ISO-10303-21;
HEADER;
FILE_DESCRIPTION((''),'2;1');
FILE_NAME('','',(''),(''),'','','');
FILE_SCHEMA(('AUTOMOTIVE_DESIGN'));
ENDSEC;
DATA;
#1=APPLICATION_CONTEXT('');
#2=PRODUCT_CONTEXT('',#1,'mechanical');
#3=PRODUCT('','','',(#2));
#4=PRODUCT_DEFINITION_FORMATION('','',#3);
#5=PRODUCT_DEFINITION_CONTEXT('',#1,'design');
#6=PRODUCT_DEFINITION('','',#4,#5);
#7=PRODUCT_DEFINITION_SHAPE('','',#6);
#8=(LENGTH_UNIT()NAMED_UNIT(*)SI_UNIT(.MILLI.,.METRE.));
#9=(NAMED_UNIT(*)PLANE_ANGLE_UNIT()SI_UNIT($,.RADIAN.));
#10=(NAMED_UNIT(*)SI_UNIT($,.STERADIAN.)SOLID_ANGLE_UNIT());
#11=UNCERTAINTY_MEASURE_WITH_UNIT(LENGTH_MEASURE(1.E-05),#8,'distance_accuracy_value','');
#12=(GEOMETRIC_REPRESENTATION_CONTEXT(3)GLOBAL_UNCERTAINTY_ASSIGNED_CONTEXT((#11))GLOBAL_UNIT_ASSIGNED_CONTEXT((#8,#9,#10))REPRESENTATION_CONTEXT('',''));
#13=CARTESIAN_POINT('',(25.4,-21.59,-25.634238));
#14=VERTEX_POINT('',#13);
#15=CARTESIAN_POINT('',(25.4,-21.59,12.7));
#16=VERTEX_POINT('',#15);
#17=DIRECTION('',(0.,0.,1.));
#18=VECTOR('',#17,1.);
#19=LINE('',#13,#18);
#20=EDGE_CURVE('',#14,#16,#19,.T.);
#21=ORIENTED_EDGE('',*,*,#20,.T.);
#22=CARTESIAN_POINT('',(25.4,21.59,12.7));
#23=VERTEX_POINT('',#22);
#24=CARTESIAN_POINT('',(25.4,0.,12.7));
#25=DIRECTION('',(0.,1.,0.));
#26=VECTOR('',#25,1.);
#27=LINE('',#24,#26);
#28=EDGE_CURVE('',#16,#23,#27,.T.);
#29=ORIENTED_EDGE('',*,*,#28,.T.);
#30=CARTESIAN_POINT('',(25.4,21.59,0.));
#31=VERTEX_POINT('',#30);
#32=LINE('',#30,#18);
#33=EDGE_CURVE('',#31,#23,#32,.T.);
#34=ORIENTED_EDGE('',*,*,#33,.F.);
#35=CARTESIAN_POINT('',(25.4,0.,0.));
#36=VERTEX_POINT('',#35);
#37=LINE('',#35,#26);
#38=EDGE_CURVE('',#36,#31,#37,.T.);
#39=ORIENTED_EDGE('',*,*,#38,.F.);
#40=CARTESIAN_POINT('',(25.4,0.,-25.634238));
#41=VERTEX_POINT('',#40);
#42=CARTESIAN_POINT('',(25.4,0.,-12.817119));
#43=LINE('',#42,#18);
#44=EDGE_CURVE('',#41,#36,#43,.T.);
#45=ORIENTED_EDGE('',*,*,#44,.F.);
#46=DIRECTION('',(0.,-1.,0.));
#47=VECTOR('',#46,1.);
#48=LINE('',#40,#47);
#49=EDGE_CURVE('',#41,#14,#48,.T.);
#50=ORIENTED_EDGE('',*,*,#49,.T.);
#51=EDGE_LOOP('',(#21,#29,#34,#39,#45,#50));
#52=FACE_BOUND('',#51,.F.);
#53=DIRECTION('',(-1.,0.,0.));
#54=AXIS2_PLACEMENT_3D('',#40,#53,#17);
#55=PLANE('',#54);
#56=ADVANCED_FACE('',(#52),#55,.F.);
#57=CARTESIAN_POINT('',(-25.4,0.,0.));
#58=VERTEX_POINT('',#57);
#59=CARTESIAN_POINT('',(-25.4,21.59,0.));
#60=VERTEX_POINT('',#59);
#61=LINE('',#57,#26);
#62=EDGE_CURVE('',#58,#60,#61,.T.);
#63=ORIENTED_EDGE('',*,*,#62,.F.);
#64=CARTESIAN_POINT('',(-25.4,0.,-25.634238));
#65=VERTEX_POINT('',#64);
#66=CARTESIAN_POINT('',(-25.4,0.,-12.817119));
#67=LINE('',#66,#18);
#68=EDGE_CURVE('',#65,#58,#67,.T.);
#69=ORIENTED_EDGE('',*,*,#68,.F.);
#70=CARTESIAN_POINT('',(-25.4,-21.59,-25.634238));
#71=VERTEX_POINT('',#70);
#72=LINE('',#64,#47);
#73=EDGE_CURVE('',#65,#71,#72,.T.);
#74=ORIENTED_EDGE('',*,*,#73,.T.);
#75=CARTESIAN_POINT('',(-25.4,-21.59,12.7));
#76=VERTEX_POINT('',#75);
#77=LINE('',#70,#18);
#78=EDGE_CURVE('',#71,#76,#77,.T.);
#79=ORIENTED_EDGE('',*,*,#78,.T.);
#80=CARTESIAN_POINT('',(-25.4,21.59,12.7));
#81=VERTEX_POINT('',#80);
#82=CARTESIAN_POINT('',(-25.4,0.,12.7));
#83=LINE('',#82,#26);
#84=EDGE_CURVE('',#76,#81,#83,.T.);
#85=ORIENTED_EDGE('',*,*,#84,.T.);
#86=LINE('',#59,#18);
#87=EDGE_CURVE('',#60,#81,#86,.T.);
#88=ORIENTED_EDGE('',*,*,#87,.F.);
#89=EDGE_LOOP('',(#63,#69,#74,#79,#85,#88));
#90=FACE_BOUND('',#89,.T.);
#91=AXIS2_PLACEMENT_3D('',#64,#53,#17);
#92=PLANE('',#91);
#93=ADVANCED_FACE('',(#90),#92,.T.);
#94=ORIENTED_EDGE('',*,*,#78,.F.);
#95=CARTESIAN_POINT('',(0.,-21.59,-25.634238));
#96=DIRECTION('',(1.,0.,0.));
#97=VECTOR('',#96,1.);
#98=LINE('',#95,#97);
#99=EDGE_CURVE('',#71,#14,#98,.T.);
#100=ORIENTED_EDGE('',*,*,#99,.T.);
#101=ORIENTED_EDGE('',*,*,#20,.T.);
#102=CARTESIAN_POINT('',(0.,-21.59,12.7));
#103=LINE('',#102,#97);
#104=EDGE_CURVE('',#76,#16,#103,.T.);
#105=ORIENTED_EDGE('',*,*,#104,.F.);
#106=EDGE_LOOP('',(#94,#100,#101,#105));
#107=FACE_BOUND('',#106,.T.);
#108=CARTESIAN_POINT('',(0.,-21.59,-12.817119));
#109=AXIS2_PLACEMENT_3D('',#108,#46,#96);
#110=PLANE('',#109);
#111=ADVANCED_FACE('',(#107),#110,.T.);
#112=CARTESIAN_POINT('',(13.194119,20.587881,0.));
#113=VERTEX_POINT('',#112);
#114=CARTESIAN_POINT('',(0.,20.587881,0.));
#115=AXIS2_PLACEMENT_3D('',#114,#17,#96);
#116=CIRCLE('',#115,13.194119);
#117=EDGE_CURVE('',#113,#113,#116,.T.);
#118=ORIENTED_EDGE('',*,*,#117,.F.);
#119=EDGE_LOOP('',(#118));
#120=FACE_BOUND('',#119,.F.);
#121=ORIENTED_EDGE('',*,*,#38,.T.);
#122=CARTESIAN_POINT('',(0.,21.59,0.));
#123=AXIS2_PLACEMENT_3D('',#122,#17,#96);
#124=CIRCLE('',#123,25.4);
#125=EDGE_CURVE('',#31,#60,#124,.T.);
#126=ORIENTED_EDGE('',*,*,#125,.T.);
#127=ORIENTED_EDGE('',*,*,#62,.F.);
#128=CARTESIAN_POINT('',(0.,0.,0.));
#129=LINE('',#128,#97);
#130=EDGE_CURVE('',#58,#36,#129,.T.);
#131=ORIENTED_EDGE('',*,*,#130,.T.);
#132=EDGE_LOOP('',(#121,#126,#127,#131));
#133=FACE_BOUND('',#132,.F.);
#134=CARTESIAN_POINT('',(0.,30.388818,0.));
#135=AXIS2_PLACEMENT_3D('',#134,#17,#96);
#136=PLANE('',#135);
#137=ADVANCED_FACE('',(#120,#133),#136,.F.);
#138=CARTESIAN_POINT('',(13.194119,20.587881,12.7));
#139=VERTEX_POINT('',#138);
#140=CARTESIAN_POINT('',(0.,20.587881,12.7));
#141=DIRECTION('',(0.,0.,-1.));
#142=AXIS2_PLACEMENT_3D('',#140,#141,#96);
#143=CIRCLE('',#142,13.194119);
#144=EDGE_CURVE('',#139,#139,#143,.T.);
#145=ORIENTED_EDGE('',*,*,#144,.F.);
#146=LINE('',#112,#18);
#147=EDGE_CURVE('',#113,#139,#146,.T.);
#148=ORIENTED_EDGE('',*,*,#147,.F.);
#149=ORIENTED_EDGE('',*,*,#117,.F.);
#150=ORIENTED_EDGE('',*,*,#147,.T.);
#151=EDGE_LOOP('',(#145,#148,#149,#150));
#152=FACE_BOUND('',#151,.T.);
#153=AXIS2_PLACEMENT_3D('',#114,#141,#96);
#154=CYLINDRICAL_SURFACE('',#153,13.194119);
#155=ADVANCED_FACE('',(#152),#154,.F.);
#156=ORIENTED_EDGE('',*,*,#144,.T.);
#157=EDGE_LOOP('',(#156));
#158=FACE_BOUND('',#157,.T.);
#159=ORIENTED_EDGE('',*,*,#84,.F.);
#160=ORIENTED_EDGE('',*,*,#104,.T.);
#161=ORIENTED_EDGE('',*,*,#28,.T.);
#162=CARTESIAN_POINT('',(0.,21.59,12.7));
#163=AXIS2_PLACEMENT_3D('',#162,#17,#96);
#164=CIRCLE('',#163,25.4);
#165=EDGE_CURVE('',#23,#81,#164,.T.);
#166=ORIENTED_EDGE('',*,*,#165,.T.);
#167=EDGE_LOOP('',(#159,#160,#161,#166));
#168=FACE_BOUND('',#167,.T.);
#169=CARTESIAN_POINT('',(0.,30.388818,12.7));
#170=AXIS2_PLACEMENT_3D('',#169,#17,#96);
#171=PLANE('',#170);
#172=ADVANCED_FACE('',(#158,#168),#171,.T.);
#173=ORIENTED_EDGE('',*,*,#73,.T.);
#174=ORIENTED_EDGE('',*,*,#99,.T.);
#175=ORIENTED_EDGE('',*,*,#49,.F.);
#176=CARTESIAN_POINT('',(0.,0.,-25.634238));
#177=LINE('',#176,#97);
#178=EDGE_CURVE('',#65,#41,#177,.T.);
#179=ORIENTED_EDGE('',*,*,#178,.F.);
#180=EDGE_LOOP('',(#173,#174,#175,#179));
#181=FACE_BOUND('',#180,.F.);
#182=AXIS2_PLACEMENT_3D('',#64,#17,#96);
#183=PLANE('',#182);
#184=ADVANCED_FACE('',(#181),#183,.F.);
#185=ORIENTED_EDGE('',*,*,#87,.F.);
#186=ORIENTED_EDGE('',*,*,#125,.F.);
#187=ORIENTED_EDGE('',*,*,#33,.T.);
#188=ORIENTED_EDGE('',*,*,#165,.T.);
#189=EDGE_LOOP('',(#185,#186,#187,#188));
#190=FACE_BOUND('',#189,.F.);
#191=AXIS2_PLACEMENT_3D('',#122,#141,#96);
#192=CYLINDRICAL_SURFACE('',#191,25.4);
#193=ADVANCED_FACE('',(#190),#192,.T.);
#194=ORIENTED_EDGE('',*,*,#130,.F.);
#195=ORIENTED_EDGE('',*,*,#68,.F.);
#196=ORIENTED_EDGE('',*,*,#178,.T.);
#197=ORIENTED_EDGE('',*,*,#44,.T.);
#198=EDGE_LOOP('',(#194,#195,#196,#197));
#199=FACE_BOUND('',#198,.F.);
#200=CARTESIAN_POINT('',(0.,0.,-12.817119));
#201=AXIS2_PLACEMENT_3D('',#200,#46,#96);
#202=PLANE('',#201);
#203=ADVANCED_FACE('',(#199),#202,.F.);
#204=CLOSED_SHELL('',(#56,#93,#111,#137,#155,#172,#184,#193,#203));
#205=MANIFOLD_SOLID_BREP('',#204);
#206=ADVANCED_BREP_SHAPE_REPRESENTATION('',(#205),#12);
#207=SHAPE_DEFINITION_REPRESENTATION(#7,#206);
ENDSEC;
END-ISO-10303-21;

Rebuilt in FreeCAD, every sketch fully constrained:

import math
import FreeCAD as App
import Part
import Sketcher
Q = App.Units.Quantity

doc = App.newDocument("Part")
body = doc.addObject("PartDesign::Body", "Body")

sketch1 = body.newObject("Sketcher::SketchObject", "Sketch")
sketch1.AttachmentSupport = (doc.getObject("XY_Plane"), [""])
sketch1.MapMode = "FlatFace"
sketch1.addGeometry(Part.ArcOfCircle(Part.Circle(App.Vector(0, 22, 0), App.Vector(0, 0, 1), 25), math.radians(0), math.radians(180)), False)
sketch1.addGeometry(Part.LineSegment(App.Vector(-25, 22, 0), App.Vector(-25, -22, 0)), False)
sketch1.addGeometry(Part.LineSegment(App.Vector(-25, -22, 0), App.Vector(25, -22, 0)), False)
sketch1.addGeometry(Part.LineSegment(App.Vector(25, -22, 0), App.Vector(25, 22, 0)), False)
sketch1.addConstraint(Sketcher.Constraint("Tangent", 0, 2, 1, 1))
sketch1.addConstraint(Sketcher.Constraint("Coincident", 1, 2, 2, 1))
sketch1.addConstraint(Sketcher.Constraint("Coincident", 2, 2, 3, 1))
sketch1.addConstraint(Sketcher.Constraint("Tangent", 3, 2, 0, 1))
sketch1.addConstraint(Sketcher.Constraint("Vertical", 1))
sketch1.addConstraint(Sketcher.Constraint("Horizontal", 2))
sketch1.addConstraint(Sketcher.Constraint("Vertical", 3))
sketch1.addConstraint(Sketcher.Constraint("Symmetric", 0, 2, 2, 2, -1, 1))
sketch1.addConstraint(Sketcher.Constraint("Radius", 0, Q("1 in")))
sketch1.addConstraint(Sketcher.Constraint("DistanceY", 1, 2, 1, 1, Q("1.7 in")))
pad1 = body.newObject("PartDesign::Pad", "Pad")
pad1.Profile = sketch1
pad1.Length = Q("0.5 in")

sketch2 = body.newObject("Sketcher::SketchObject", "Sketch001")
sketch2.AttachmentSupport = (doc.getObject("XY_Plane"), [""])
sketch2.MapMode = "FlatFace"
sketch2.addGeometry(Part.Circle(App.Vector(0, 21, 0), App.Vector(0, 0, 1), 13), False)
sketch2.addConstraint(Sketcher.Constraint("PointOnObject", 0, 3, -2))
sketch2.addConstraint(Sketcher.Constraint("Diameter", 0, 26.388238))
sketch2.addConstraint(Sketcher.Constraint("DistanceY", -1, 1, 0, 3, 20.587881))
pocket1 = body.newObject("PartDesign::Pocket", "Pocket")
pocket1.Profile = sketch2
pocket1.Type = "ThroughAll"
pocket1.Reversed = True

sketch3 = body.newObject("Sketcher::SketchObject", "Sketch002")
sketch3.AttachmentSupport = (doc.getObject("XZ_Plane"), [""])
sketch3.MapMode = "FlatFace"
sketch3.addGeometry(Part.LineSegment(App.Vector(-25, 0, 0), App.Vector(-25, -26, 0)), False)
sketch3.addGeometry(Part.LineSegment(App.Vector(-25, -26, 0), App.Vector(25, -26, 0)), False)
sketch3.addGeometry(Part.LineSegment(App.Vector(25, -26, 0), App.Vector(25, 0, 0)), False)
sketch3.addGeometry(Part.LineSegment(App.Vector(25, 0, 0), App.Vector(-25, 0, 0)), False)
sketch3.addConstraint(Sketcher.Constraint("Coincident", 0, 2, 1, 1))
sketch3.addConstraint(Sketcher.Constraint("Coincident", 1, 2, 2, 1))
sketch3.addConstraint(Sketcher.Constraint("Coincident", 2, 2, 3, 1))
sketch3.addConstraint(Sketcher.Constraint("Coincident", 3, 2, 0, 1))
sketch3.addConstraint(Sketcher.Constraint("Vertical", 0))
sketch3.addConstraint(Sketcher.Constraint("Horizontal", 1))
sketch3.addConstraint(Sketcher.Constraint("Vertical", 2))
sketch3.addConstraint(Sketcher.Constraint("Horizontal", 3))
sketch3.addConstraint(Sketcher.Constraint("Symmetric", 2, 2, 3, 2, -1, 1))
sketch3.addConstraint(Sketcher.Constraint("DistanceX", 1, 1, 1, 2, Q("2 in")))
sketch3.addConstraint(Sketcher.Constraint("DistanceY", 0, 2, 0, 1, 25.634238))
pad2 = body.newObject("PartDesign::Pad", "Pad001")
pad2.Profile = sketch3
pad2.Length = Q("0.85 in")

doc.recompute()
